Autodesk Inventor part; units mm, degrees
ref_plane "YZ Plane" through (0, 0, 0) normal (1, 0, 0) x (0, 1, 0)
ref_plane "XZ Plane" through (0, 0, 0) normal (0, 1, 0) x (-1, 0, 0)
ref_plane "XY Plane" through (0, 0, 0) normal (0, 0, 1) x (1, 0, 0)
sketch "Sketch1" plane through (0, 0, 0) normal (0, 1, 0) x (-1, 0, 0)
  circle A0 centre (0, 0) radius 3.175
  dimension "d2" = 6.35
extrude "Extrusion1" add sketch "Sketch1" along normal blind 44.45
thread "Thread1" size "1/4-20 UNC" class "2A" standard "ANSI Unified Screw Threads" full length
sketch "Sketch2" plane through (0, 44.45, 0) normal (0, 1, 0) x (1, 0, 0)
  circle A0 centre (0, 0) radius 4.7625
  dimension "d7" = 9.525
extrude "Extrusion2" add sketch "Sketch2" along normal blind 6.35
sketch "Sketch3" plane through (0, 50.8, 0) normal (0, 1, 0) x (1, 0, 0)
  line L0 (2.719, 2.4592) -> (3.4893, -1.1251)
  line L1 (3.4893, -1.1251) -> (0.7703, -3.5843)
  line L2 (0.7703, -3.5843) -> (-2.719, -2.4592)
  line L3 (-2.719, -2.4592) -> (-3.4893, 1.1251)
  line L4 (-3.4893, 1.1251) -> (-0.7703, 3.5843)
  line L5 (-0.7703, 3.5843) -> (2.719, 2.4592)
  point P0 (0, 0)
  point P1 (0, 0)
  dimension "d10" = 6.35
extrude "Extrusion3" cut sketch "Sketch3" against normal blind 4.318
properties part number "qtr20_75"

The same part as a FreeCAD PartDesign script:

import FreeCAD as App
import Part
import Sketcher
Q = App.Units.Quantity


def add_polygon(sketch, points):
    """Adds a closed chain of lines whose ends are joined by coincident constraints."""
    first, n = sketch.GeometryCount, len(points)
    for a, b in zip(points, points[1:] + points[:1]):
        sketch.addGeometry(Part.LineSegment(App.Vector(*a, 0), App.Vector(*b, 0)), False)
    for i in range(n):
        sketch.addConstraint(Sketcher.Constraint("Coincident", first + i, 2, first + (i + 1) % n, 1))

doc = App.newDocument("Part")
params = doc.addObject("Spreadsheet::Sheet", "Params")
for row, (alias, value) in enumerate([
    ("sketch1_diameter", "0.25 in"),
    ("pad1_length", "1.75 in"),
    ("sketch2_diameter", "0.375 in"),
    ("pad2_length", "0.25 in"),
    ("pocket1_length", "0.17 in"),
], start=1):
    params.set(f"A{row}", alias)
    params.set(f"B{row}", "=" + value)
    params.setAlias(f"B{row}", alias)

body = doc.addObject("PartDesign::Body", "Body")

# Sketch on XZ plane
sketch1 = doc.addObject("Sketcher::SketchObject", "Sketch")
body.addObject(sketch1)
sketch1.AttachmentSupport = (doc.XZ_Plane, [""])
sketch1.MapMode = "FlatFace"
sketch1.addGeometry(Part.Circle(App.Vector(0, 0, 0), App.Vector(0, 0, 1), 3.2), False)
sketch1.addConstraint([
    Sketcher.Constraint("Coincident", 0, 3, -1, 1),
    Sketcher.Constraint("Diameter", 0, Q("0.25 in")),
])
sketch1.setExpression("Constraints[1]", "Params.sketch1_diameter")
pad1 = doc.addObject("PartDesign::Pad", "Pad")
body.addObject(pad1)
pad1.Profile = sketch1
pad1.setExpression("Length", "Params.pad1_length")
pad1.Reversed = True

# Sketch on XZ plane
sketch2 = doc.addObject("Sketcher::SketchObject", "Sketch001")
body.addObject(sketch2)
sketch2.AttachmentSupport = (doc.XZ_Plane, [""])
sketch2.MapMode = "FlatFace"
sketch2.AttachmentOffset = App.Placement(App.Vector(0, 0, -1.75 * 25.4), App.Rotation())
sketch2.addGeometry(Part.Circle(App.Vector(0, 0, 0), App.Vector(0, 0, 1), 4.8), False)
sketch2.addConstraint([
    Sketcher.Constraint("Coincident", 0, 3, -1, 1),
    Sketcher.Constraint("Diameter", 0, Q("0.375 in")),
])
sketch2.setExpression("Constraints[1]", "Params.sketch2_diameter")
pad2 = doc.addObject("PartDesign::Pad", "Pad001")
body.addObject(pad2)
pad2.Profile = sketch2
pad2.setExpression("Length", "Params.pad2_length")
pad2.Reversed = True

# Sketch on XZ plane
sketch3 = doc.addObject("Sketcher::SketchObject", "Sketch002")
body.addObject(sketch3)
sketch3.AttachmentSupport = (doc.XZ_Plane, [""])
sketch3.MapMode = "FlatFace"
sketch3.AttachmentOffset = App.Placement(App.Vector(0, 0, -2 * 25.4), App.Rotation())
add_polygon(sketch3, [(3.5, 1.1), (2.7, -2.5), (-0.8, -3.6), (-3.5, -1.1), (-2.7, 2.5), (0.8, 3.6)])  # lines 0-5
sketch3.addConstraint([
    Sketcher.Constraint("Symmetric", 0, 2, 3, 2, -1, 1),
    Sketcher.Constraint("Symmetric", 1, 2, 4, 2, -1, 1),
    Sketcher.Constraint("Symmetric", 2, 2, 5, 2, -1, 1),
    Sketcher.Constraint("Equal", 0, 1),
    Sketcher.Constraint("Equal", 1, 2),
    Sketcher.Constraint("Angle", 0, Q("-102.129 deg")),
    Sketcher.Constraint("DistanceY", 2, 2, -1, 1, Q("0.0443 in")),
    Sketcher.Constraint("DistanceY", 1, 2, 0, 2, Q("0.0443 in")),
    Sketcher.Constraint("DistanceX", 3, 2, 0, 2, Q("0.2141 in")),
])
pocket1 = doc.addObject("PartDesign::Pocket", "Pocket")
body.addObject(pocket1)
pocket1.Profile = sketch3
pocket1.setExpression("Length", "Params.pocket1_length")
pocket1.Reversed = True

doc.recompute()
